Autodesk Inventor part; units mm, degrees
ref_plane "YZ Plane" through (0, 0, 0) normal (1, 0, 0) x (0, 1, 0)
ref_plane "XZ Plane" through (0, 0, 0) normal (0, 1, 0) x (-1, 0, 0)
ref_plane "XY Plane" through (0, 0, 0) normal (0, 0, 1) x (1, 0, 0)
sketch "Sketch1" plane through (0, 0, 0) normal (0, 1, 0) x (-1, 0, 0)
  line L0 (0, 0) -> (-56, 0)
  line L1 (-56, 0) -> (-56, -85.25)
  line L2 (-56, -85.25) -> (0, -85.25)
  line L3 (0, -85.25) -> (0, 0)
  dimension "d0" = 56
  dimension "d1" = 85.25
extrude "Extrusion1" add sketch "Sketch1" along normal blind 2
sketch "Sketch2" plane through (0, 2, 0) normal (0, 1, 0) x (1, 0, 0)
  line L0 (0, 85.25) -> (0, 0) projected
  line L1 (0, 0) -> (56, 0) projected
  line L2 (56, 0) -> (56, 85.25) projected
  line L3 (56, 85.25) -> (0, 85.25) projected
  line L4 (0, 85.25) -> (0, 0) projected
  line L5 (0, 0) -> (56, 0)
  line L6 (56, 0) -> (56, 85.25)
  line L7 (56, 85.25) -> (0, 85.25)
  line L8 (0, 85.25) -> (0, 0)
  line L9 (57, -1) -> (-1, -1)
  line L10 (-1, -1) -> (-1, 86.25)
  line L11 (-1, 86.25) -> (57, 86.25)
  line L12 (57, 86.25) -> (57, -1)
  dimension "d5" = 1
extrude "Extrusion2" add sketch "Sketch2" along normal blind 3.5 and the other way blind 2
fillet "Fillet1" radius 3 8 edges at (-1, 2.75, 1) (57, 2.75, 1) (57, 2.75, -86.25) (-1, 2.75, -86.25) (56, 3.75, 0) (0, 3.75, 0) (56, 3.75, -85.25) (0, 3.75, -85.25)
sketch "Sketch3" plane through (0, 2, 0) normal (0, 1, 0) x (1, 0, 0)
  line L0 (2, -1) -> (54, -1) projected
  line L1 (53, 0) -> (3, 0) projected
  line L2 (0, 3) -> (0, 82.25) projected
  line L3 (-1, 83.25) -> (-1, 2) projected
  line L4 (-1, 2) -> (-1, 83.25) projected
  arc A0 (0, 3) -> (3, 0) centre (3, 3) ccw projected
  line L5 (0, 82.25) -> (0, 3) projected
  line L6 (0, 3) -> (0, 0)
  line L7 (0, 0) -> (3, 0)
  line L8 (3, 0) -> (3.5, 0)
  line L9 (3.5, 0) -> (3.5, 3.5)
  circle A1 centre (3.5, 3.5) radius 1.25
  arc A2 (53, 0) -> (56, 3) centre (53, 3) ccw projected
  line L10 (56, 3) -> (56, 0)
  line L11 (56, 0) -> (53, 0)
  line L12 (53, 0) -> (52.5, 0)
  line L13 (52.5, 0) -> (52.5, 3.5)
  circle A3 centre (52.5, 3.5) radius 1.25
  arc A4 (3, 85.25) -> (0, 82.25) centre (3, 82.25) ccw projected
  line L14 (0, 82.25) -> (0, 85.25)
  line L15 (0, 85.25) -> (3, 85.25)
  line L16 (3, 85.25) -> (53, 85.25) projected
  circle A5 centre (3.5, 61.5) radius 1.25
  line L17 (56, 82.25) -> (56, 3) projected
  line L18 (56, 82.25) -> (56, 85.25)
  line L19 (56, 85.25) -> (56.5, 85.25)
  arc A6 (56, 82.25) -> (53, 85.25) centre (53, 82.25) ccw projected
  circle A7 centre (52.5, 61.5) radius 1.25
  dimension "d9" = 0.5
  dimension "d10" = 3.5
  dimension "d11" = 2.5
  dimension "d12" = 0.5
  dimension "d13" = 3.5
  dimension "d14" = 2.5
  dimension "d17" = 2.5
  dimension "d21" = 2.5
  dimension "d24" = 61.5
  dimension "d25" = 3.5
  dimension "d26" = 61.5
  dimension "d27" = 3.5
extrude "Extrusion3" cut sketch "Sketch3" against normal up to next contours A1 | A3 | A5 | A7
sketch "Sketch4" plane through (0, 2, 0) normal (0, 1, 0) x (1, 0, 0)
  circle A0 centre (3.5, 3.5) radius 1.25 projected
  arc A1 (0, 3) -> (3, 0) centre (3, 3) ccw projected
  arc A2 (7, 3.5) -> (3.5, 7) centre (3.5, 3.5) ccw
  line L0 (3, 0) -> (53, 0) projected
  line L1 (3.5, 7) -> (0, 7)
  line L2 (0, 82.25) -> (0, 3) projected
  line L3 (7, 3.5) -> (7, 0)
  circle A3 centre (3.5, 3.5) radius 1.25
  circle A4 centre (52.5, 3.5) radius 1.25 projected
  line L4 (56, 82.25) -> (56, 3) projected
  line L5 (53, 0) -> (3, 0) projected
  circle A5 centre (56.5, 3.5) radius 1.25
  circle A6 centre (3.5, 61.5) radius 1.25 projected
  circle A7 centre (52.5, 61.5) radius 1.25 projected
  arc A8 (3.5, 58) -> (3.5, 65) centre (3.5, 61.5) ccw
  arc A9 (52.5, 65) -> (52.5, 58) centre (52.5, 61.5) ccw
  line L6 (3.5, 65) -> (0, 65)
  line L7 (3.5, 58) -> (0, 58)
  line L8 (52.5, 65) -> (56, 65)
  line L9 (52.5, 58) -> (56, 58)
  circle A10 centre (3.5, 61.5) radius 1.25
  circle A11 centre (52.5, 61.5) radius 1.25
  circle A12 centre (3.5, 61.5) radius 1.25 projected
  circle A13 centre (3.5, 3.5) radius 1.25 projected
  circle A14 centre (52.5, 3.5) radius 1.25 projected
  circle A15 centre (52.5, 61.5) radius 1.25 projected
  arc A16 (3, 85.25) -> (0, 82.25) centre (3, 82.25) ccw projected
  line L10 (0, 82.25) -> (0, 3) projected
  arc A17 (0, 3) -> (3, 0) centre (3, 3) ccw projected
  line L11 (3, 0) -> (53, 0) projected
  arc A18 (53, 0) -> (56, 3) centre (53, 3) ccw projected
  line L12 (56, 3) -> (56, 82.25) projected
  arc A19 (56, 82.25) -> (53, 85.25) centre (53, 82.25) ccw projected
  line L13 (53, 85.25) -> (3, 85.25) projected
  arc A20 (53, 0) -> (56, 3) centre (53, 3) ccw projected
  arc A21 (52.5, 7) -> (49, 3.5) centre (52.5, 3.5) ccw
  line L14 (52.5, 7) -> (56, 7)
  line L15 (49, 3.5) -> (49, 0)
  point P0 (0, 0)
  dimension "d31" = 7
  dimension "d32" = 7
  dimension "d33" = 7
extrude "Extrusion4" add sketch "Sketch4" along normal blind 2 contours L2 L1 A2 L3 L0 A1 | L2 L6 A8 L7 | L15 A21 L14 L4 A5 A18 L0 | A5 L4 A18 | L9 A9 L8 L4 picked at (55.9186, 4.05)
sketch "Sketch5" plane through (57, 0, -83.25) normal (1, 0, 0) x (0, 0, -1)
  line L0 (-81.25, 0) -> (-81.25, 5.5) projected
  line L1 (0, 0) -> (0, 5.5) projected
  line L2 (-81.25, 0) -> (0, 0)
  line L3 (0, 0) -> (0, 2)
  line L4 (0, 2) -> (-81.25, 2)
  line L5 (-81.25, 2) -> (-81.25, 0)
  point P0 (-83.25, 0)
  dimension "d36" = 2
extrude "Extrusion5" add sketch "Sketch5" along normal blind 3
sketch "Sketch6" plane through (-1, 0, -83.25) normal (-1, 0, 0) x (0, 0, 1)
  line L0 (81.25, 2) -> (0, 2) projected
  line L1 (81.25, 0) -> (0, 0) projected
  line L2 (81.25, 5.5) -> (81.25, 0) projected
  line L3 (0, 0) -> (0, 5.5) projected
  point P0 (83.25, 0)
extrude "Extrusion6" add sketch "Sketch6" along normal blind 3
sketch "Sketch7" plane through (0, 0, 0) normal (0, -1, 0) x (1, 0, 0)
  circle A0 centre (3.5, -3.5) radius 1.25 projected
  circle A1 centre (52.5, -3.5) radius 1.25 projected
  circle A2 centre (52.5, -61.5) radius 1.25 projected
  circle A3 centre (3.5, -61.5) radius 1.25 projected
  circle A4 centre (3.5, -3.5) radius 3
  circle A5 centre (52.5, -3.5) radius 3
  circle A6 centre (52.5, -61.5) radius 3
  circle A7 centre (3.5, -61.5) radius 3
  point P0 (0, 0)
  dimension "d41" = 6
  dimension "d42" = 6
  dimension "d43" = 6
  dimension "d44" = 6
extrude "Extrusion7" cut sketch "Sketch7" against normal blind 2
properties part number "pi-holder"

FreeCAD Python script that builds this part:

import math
import FreeCAD as App
import Part
import Sketcher

V = App.Vector
Q = App.Units.Quantity


def edges_at(feature, points):
    """Names of the edges that pass closest to the given points."""
    edges = feature.Shape.Edges
    near = lambda p: min(range(len(edges)), key=lambda i: edges[i].distToShape(Part.Vertex(*p))[0])
    return sorted({f"Edge{near(p) + 1}" for p in points})


def add_polygon(sketch, points):
    """Adds a closed chain of lines whose ends are joined by coincident constraints."""
    first, n = sketch.GeometryCount, len(points)
    for a, b in zip(points, points[1:] + points[:1]):
        sketch.addGeometry(Part.LineSegment(App.Vector(*a, 0), App.Vector(*b, 0)), False)
    for i in range(n):
        sketch.addConstraint(Sketcher.Constraint("Coincident", first + i, 2, first + (i + 1) % n, 1))

doc = App.newDocument("Part")
params = doc.addObject("Spreadsheet::Sheet", "Params")
for row, (alias, value) in enumerate([
    ("sketch1_width", "56 mm"),
    ("sketch1_height", "85.25 mm"),
    ("pad1_length", "2 mm"),
    ("sketch2_width", "58 mm"),
    ("sketch2_height", "87.25 mm"),
    ("pad2_length", "3.5 mm"),
    ("pad2_length2", "2 mm"),
    ("fillet_radius", "3 mm"),
    ("sketch3_diameter", "2.5 mm"),
    ("pocket1_length", "2 mm"),
    ("sketch4_radius", "3.5 mm"),
    ("sketch4_radius2", "3 mm"),
    ("sketch4_diameter", "2.5 mm"),
    ("pad3_length", "2 mm"),
    ("sketch5_width", "2 mm"),
    ("sketch5_height", "81.25 mm"),
    ("pad4_length", "3 mm"),
    ("sketch6_width", "2 mm"),
    ("sketch6_height", "81.25 mm"),
    ("pad5_length", "3 mm"),
    ("sketch7_diameter", "6 mm"),
    ("sketch7_diameter2", "2.5 mm"),
    ("pocket2_length", "2 mm"),
], start=1):
    params.set(f"A{row}", alias)
    params.set(f"B{row}", "=" + value)
    params.setAlias(f"B{row}", alias)

body = doc.addObject("PartDesign::Body", "Body")

sketch1 = body.newObject("Sketcher::SketchObject", "Sketch")
sketch1.AttachmentSupport = (doc.getObject("XZ_Plane"), [""])
sketch1.MapMode = "FlatFace"
add_polygon(sketch1, [(0, -85.25), (0, 0), (56, 0), (56, -85.25)])
sketch1.addConstraint([
    Sketcher.Constraint("Vertical", 0),
    Sketcher.Constraint("Horizontal", 1),
    Sketcher.Constraint("Vertical", 2),
    Sketcher.Constraint("Horizontal", 3),
    Sketcher.Constraint("Coincident", 0, 2, -1, 1),
    Sketcher.Constraint("DistanceX", 1, 1, 1, 2, Q("56 mm")),
    Sketcher.Constraint("DistanceY", 0, 1, 0, 2, Q("85.25 mm")),
])
sketch1.setExpression("Constraints[9]", "Params.sketch1_width")
sketch1.setExpression("Constraints[10]", "Params.sketch1_height")
pad1 = body.newObject("PartDesign::Pad", "Pad")
pad1.Profile = sketch1
pad1.setExpression("Length", "Params.pad1_length")
pad1.Reversed = True

sketch2 = body.newObject("Sketcher::SketchObject", "Sketch001")
sketch2.AttachmentSupport = (doc.getObject("XZ_Plane"), [""])
sketch2.MapMode = "FlatFace"
sketch2.AttachmentOffset = App.Placement(V(0, 0, -2), App.Rotation())
add_polygon(sketch2, [(-1, 1), (57, 1), (57, -86.25), (-1, -86.25)])
add_polygon(sketch2, [(0, 0), (0, -85.25), (56, -85.25), (56, 0)])
sketch2.addConstraint([
    Sketcher.Constraint("Horizontal", 0),
    Sketcher.Constraint("Vertical", 1),
    Sketcher.Constraint("Horizontal", 2),
    Sketcher.Constraint("Vertical", 3),
    Sketcher.Constraint("Vertical", 4),
    Sketcher.Constraint("Horizontal", 5),
    Sketcher.Constraint("Vertical", 6),
    Sketcher.Constraint("Horizontal", 7),
    Sketcher.Constraint("Coincident", 7, 2, -1, 1),
    Sketcher.Constraint("DistanceY", -1, 1, 0, 2, Q("1 mm")),
    Sketcher.Constraint("DistanceX", 2, 2, -1, 1, Q("1 mm")),
    Sketcher.Constraint("DistanceY", 2, 2, 4, 2, Q("1 mm")),
    Sketcher.Constraint("DistanceX", 5, 2, 1, 2, Q("1 mm")),
    Sketcher.Constraint("DistanceX", 0, 1, 0, 2, Q("58 mm")),
    Sketcher.Constraint("DistanceY", 1, 2, 1, 1, Q("87.25 mm")),
])
sketch2.setExpression("Constraints[21]", "Params.sketch2_width")
sketch2.setExpression("Constraints[22]", "Params.sketch2_height")
pad2 = body.newObject("PartDesign::Pad", "Pad001")
pad2.Profile = sketch2
pad2.Type = "TwoLengths"
pad2.setExpression("Length", "Params.pad2_length")
pad2.setExpression("Length2", "Params.pad2_length2")
pad2.Reversed = True
doc.recompute()

fillet = body.newObject("PartDesign::Fillet", "Fillet")
fillet.Base = (pad2, edges_at(pad2, [
    (-1, 2.75, 1),
    (57, 2.75, 1),
    (57, 2.75, -86.25),
    (-1, 2.75, -86.25),
    (56, 3.75, 0),
    (0, 3.75, 0),
    (56, 3.75, -85.25),
    (0, 3.75, -85.25),
]))
fillet.setExpression("Radius", "Params.fillet_radius")

sketch3 = body.newObject("Sketcher::SketchObject", "Sketch002")
sketch3.AttachmentSupport = (doc.getObject("XZ_Plane"), [""])
sketch3.MapMode = "FlatFace"
sketch3.AttachmentOffset = App.Placement(V(0, 0, -2), App.Rotation())
sketch3.addGeometry([
    Part.Circle(V(3.5, -3.5, 0), V(0, 0, 1), 1.25),
    Part.Circle(V(52.5, -3.5, 0), V(0, 0, 1), 1.25),
    Part.Circle(V(3.5, -61.5, 0), V(0, 0, 1), 1.25),
    Part.Circle(V(52.5, -61.5, 0), V(0, 0, 1), 1.25),
], False)
sketch3.addConstraint([
    Sketcher.Constraint("Equal", 0, 1),
    Sketcher.Constraint("Equal", 1, 2),
    Sketcher.Constraint("Equal", 2, 3),
    Sketcher.Constraint("Horizontal", 0, 3, 1, 3),
    Sketcher.Constraint("Horizontal", 2, 3, 3, 3),
    Sketcher.Constraint("Vertical", 0, 3, 2, 3),
    Sketcher.Constraint("Vertical", 1, 3, 3, 3),
    Sketcher.Constraint("Diameter", 0, Q("2.5 mm")),
    Sketcher.Constraint("DistanceX", -1, 1, 0, 3, Q("3.5 mm")),
    Sketcher.Constraint("DistanceY", 0, 3, -1, 1, Q("3.5 mm")),
    Sketcher.Constraint("DistanceY", 2, 3, -1, 1, Q("61.5 mm")),
    Sketcher.Constraint("DistanceX", 0, 3, 1, 3, Q("49 mm")),
])
sketch3.setExpression("Constraints[7]", "Params.sketch3_diameter")
pocket1 = body.newObject("PartDesign::Pocket", "Pocket")
pocket1.Profile = sketch3
pocket1.setExpression("Length", "Params.pocket1_length")
pocket1.Reversed = True

sketch4 = body.newObject("Sketcher::SketchObject", "Sketch003")
sketch4.AttachmentSupport = (doc.getObject("XZ_Plane"), [""])
sketch4.MapMode = "FlatFace"
sketch4.AttachmentOffset = App.Placement(V(0, 0, -2), App.Rotation())
sketch4.addGeometry([
    Part.LineSegment(V(0, -7, 0), V(0, -3, 0)),
    Part.ArcOfCircle(Part.Circle(V(3, -3, 0), V(0, 0, 1), 3), math.radians(90), math.radians(180)),
    Part.LineSegment(V(3, 0, 0), V(7, 0, 0)),
    Part.LineSegment(V(7, 0, 0), V(7, -3.5, 0)),
    Part.ArcOfCircle(Part.Circle(V(3.5, -3.5, 0), V(0, 0, 1), 3.5), math.radians(-90), math.radians(0)),
    Part.LineSegment(V(3.5, -7, 0), V(0, -7, 0)),
    Part.Circle(V(3.5, -3.5, 0), V(0, 0, 1), 1.25),
    Part.LineSegment(V(0, -65, 0), V(0, -58, 0)),
    Part.LineSegment(V(0, -58, 0), V(3.5, -58, 0)),
    Part.ArcOfCircle(Part.Circle(V(3.5, -61.5, 0), V(0, 0, 1), 3.5), math.radians(-90), math.radians(90)),
    Part.LineSegment(V(3.5, -65, 0), V(0, -65, 0)),
    Part.Circle(V(3.5, -61.5, 0), V(0, 0, 1), 1.25),
    Part.LineSegment(V(49, -3.5, 0), V(49, 0, 0)),
    Part.LineSegment(V(49, 0, 0), V(53, 0, 0)),
    Part.ArcOfCircle(Part.Circle(V(53, -3, 0), V(0, 0, 1), 3), math.radians(0), math.radians(90)),
    Part.LineSegment(V(56, -3, 0), V(56, -7, 0)),
    Part.LineSegment(V(56, -7, 0), V(52.5, -7, 0)),
    Part.ArcOfCircle(Part.Circle(V(52.5, -3.5, 0), V(0, 0, 1), 3.5), math.radians(180), math.radians(270)),
    Part.Circle(V(52.5, -3.5, 0), V(0, 0, 1), 1.25),
    Part.LineSegment(V(52.5, -58, 0), V(56, -58, 0)),
    Part.LineSegment(V(56, -58, 0), V(56, -65, 0)),
    Part.LineSegment(V(56, -65, 0), V(52.5, -65, 0)),
    Part.ArcOfCircle(Part.Circle(V(52.5, -61.5, 0), V(0, 0, 1), 3.5), math.radians(90), math.radians(270)),
    Part.Circle(V(52.5, -61.5, 0), V(0, 0, 1), 1.25),
], False)
sketch4.addConstraint([
    Sketcher.Constraint("Tangent", 0, 2, 1, 2),
    Sketcher.Constraint("Tangent", 1, 1, 2, 1),
    Sketcher.Constraint("Coincident", 2, 2, 3, 1),
    Sketcher.Constraint("Tangent", 3, 2, 4, 2),
    Sketcher.Constraint("Tangent", 4, 1, 5, 1),
    Sketcher.Constraint("Coincident", 5, 2, 0, 1),
    Sketcher.Constraint("Coincident", 7, 2, 8, 1),
    Sketcher.Constraint("Tangent", 8, 2, 9, 2),
    Sketcher.Constraint("Tangent", 9, 1, 10, 1),
    Sketcher.Constraint("Coincident", 10, 2, 7, 1),
    Sketcher.Constraint("Coincident", 12, 2, 13, 1),
    Sketcher.Constraint("Tangent", 13, 2, 14, 2),
    Sketcher.Constraint("Tangent", 14, 1, 15, 1),
    Sketcher.Constraint("Coincident", 15, 2, 16, 1),
    Sketcher.Constraint("Tangent", 16, 2, 17, 2),
    Sketcher.Constraint("Tangent", 17, 1, 12, 1),
    Sketcher.Constraint("Coincident", 19, 2, 20, 1),
    Sketcher.Constraint("Coincident", 20, 2, 21, 1),
    Sketcher.Constraint("Tangent", 21, 2, 22, 2),
    Sketcher.Constraint("Tangent", 22, 1, 19, 1),
    Sketcher.Constraint("Vertical", 0),
    Sketcher.Constraint("Horizontal", 2),
    Sketcher.Constraint("Vertical", 3),
    Sketcher.Constraint("Horizontal", 5),
    Sketcher.Constraint("Vertical", 7),
    Sketcher.Constraint("Horizontal", 8),
    Sketcher.Constraint("Horizontal", 10),
    Sketcher.Constraint("Vertical", 12),
    Sketcher.Constraint("Horizontal", 13),
    Sketcher.Constraint("Vertical", 15),
    Sketcher.Constraint("Horizontal", 16),
    Sketcher.Constraint("Horizontal", 19),
    Sketcher.Constraint("Vertical", 20),
    Sketcher.Constraint("Horizontal", 21),
    Sketcher.Constraint("Coincident", 6, 3, 4, 3),
    Sketcher.Constraint("Coincident", 11, 3, 9, 3),
    Sketcher.Constraint("Coincident", 18, 3, 17, 3),
    Sketcher.Constraint("Coincident", 23, 3, 22, 3),
    Sketcher.Constraint("Equal", 4, 9),
    Sketcher.Constraint("Equal", 6, 11),
    Sketcher.Constraint("Equal", 1, 14),
    Sketcher.Constraint("Equal", 9, 17),
    Sketcher.Constraint("Equal", 11, 18),
    Sketcher.Constraint("Equal", 17, 22),
    Sketcher.Constraint("Equal", 18, 23),
    Sketcher.Constraint("PointOnObject", 0, 2, -2),
    Sketcher.Constraint("PointOnObject", 1, 1, -1),
    Sketcher.Constraint("PointOnObject", 7, 2, -2),
    Sketcher.Constraint("PointOnObject", 12, 2, -1),
    Sketcher.Constraint("Horizontal", 6, 3, 17, 3),
    Sketcher.Constraint("Horizontal", 11, 3, 22, 3),
    Sketcher.Constraint("Vertical", 6, 3, 9, 3),
    Sketcher.Constraint("Vertical", 18, 3, 22, 3),
    Sketcher.Constraint("Vertical", 15, 2, 19, 2),
    Sketcher.Constraint("Equal", 2, 13),
    Sketcher.Constraint("Equal", 13, 0),
    Sketcher.Constraint("Radius", 4, Q("3.5 mm")),
    Sketcher.Constraint("DistanceX", -1, 1, 2, 2, Q("7 mm")),
    Sketcher.Constraint("Radius", 1, Q("3 mm")),
    Sketcher.Constraint("Diameter", 6, Q("2.5 mm")),
    Sketcher.Constraint("DistanceX", -1, 1, 14, 3, Q("53 mm")),
    Sketcher.Constraint("DistanceY", 7, 2, -1, 1, Q("58 mm")),
])
sketch4.setExpression("Constraints[56]", "Params.sketch4_radius")
sketch4.setExpression("Constraints[58]", "Params.sketch4_radius2")
sketch4.setExpression("Constraints[59]", "Params.sketch4_diameter")
pad3 = body.newObject("PartDesign::Pad", "Pad002")
pad3.Profile = sketch4
pad3.setExpression("Length", "Params.pad3_length")
pad3.Reversed = True

sketch5 = body.newObject("Sketcher::SketchObject", "Sketch004")
sketch5.AttachmentSupport = (doc.getObject("YZ_Plane"), [""])
sketch5.MapMode = "FlatFace"
sketch5.AttachmentOffset = App.Placement(V(0, 0, 57), App.Rotation())
add_polygon(sketch5, [(2, -2), (0, -2), (0, -83.25), (2, -83.25)])
sketch5.addConstraint([
    Sketcher.Constraint("Horizontal", 0),
    Sketcher.Constraint("Vertical", 1),
    Sketcher.Constraint("Horizontal", 2),
    Sketcher.Constraint("Vertical", 3),
    Sketcher.Constraint("PointOnObject", 0, 2, -2),
    Sketcher.Constraint("DistanceX", 0, 2, 0, 1, Q("2 mm")),
    Sketcher.Constraint("DistanceY", 0, 2, -1, 1, Q("2 mm")),
    Sketcher.Constraint("DistanceY", 1, 2, 1, 1, Q("81.25 mm")),
])
sketch5.setExpression("Constraints[9]", "Params.sketch5_width")
sketch5.setExpression("Constraints[11]", "Params.sketch5_height")
pad4 = body.newObject("PartDesign::Pad", "Pad003")
pad4.Profile = sketch5
pad4.setExpression("Length", "Params.pad4_length")

sketch6 = body.newObject("Sketcher::SketchObject", "Sketch005")
sketch6.AttachmentSupport = (doc.getObject("YZ_Plane"), [""])
sketch6.MapMode = "FlatFace"
sketch6.AttachmentOffset = App.Placement(V(0, 0, -1), App.Rotation())
add_polygon(sketch6, [(0, -2), (2, -2), (2, -83.25), (0, -83.25)])
sketch6.addConstraint([
    Sketcher.Constraint("Horizontal", 0),
    Sketcher.Constraint("Vertical", 1),
    Sketcher.Constraint("Horizontal", 2),
    Sketcher.Constraint("Vertical", 3),
    Sketcher.Constraint("PointOnObject", 2, 2, -2),
    Sketcher.Constraint("DistanceX", 0, 1, 0, 2, Q("2 mm")),
    Sketcher.Constraint("DistanceY", 0, 2, -1, 1, Q("2 mm")),
    Sketcher.Constraint("DistanceY", 1, 2, 1, 1, Q("81.25 mm")),
])
sketch6.setExpression("Constraints[9]", "Params.sketch6_width")
sketch6.setExpression("Constraints[11]", "Params.sketch6_height")
pad5 = body.newObject("PartDesign::Pad", "Pad004")
pad5.Profile = sketch6
pad5.setExpression("Length", "Params.pad5_length")
pad5.Reversed = True

sketch7 = body.newObject("Sketcher::SketchObject", "Sketch006")
sketch7.AttachmentSupport = (doc.getObject("XZ_Plane"), [""])
sketch7.MapMode = "FlatFace"
sketch7.addGeometry([
    Part.Circle(V(3.5, -3.5, 0), V(0, 0, 1), 3),
    Part.Circle(V(3.5, -3.5, 0), V(0, 0, 1), 1.25),
    Part.Circle(V(52.5, -3.5, 0), V(0, 0, 1), 3),
    Part.Circle(V(52.5, -3.5, 0), V(0, 0, 1), 1.25),
    Part.Circle(V(52.5, -61.5, 0), V(0, 0, 1), 3),
    Part.Circle(V(52.5, -61.5, 0), V(0, 0, 1), 1.25),
    Part.Circle(V(3.5, -61.5, 0), V(0, 0, 1), 3),
    Part.Circle(V(3.5, -61.5, 0), V(0, 0, 1), 1.25),
], False)
sketch7.addConstraint([
    Sketcher.Constraint("Coincident", 1, 3, 0, 3),
    Sketcher.Constraint("Coincident", 3, 3, 2, 3),
    Sketcher.Constraint("Coincident", 5, 3, 4, 3),
    Sketcher.Constraint("Coincident", 7, 3, 6, 3),
    Sketcher.Constraint("Equal", 0, 2),
    Sketcher.Constraint("Equal", 1, 3),
    Sketcher.Constraint("Equal", 2, 4),
    Sketcher.Constraint("Equal", 3, 5),
    Sketcher.Constraint("Equal", 4, 6),
    Sketcher.Constraint("Equal", 5, 7),
    Sketcher.Constraint("Horizontal", 1, 3, 2, 3),
    Sketcher.Constraint("Horizontal", 5, 3, 6, 3),
    Sketcher.Constraint("Vertical", 3, 3, 4, 3),
    Sketcher.Constraint("Vertical", 1, 3, 6, 3),
    Sketcher.Constraint("Diameter", 0, Q("6 mm")),
    Sketcher.Constraint("Diameter", 1, Q("2.5 mm")),
    Sketcher.Constraint("DistanceX", 0, 3, 2, 3, Q("49 mm")),
    Sketcher.Constraint("DistanceY", 4, 3, 2, 3, Q("58 mm")),
    Sketcher.Constraint("DistanceX", -1, 1, 0, 3, Q("3.5 mm")),
    Sketcher.Constraint("DistanceY", 0, 3, -1, 1, Q("3.5 mm")),
])
sketch7.setExpression("Constraints[14]", "Params.sketch7_diameter")
sketch7.setExpression("Constraints[15]", "Params.sketch7_diameter2")
pocket2 = body.newObject("PartDesign::Pocket", "Pocket001")
pocket2.Profile = sketch7
pocket2.setExpression("Length", "Params.pocket2_length")

doc.recompute()
